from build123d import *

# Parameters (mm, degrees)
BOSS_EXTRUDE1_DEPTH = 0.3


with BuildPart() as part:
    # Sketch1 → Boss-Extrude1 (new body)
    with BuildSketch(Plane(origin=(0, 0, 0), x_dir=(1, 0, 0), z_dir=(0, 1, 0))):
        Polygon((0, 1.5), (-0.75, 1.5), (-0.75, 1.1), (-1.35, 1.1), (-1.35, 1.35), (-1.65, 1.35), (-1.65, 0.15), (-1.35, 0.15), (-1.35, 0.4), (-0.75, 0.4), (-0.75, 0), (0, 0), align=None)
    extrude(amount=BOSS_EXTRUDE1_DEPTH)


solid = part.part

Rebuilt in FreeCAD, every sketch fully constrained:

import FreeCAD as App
import Part
import Sketcher

V = App.Vector

doc = App.newDocument("Part")
body = doc.addObject("PartDesign::Body", "Body")

# Sketch on XZ plane
sketch1 = body.newObject("Sketcher::SketchObject", "Sketch")
sketch1.AttachmentSupport = (doc.getObject("XZ_Plane"), [""])
sketch1.MapMode = "FlatFace"
sketch1.addGeometry([
    Part.LineSegment(V(0, -1.5, 0), V(-0.75, -1.5, 0)),  # 0
    Part.LineSegment(V(-0.75, -1.5, 0), V(-0.75, -1.1, 0)),  # 1
    Part.LineSegment(V(-0.75, -1.1, 0), V(-1.35, -1.1, 0)),  # 2
    Part.LineSegment(V(-1.35, -1.1, 0), V(-1.35, -1.35, 0)),  # 3
    Part.LineSegment(V(-1.35, -1.35, 0), V(-1.65, -1.35, 0)),  # 4
    Part.LineSegment(V(-1.65, -1.35, 0), V(-1.65, -0.15, 0)),  # 5
    Part.LineSegment(V(-1.65, -0.15, 0), V(-1.35, -0.15, 0)),  # 6
    Part.LineSegment(V(-1.35, -0.15, 0), V(-1.35, -0.4, 0)),  # 7
    Part.LineSegment(V(-1.35, -0.4, 0), V(-0.75, -0.4, 0)),  # 8
    Part.LineSegment(V(-0.75, -0.4, 0), V(-0.75, 0, 0)),  # 9
    Part.LineSegment(V(-0.75, 0, 0), V(0, 0, 0)),  # 10
    Part.LineSegment(V(0, 0, 0), V(0, -1.5, 0)),  # 11
], False)
sketch1.addConstraint([
    Sketcher.Constraint("Coincident", 0, 2, 1, 1),
    Sketcher.Constraint("Coincident", 1, 2, 2, 1),
    Sketcher.Constraint("Coincident", 2, 2, 3, 1),
    Sketcher.Constraint("Coincident", 3, 2, 4, 1),
    Sketcher.Constraint("Coincident", 4, 2, 5, 1),
    Sketcher.Constraint("Coincident", 5, 2, 6, 1),
    Sketcher.Constraint("Coincident", 6, 2, 7, 1),
    Sketcher.Constraint("Coincident", 7, 2, 8, 1),
    Sketcher.Constraint("Coincident", 8, 2, 9, 1),
    Sketcher.Constraint("Coincident", 9, 2, 10, 1),
    Sketcher.Constraint("Coincident", 10, 2, 11, 1),
    Sketcher.Constraint("Coincident", 11, 2, 0, 1),
    Sketcher.Constraint("Horizontal", 0),
    Sketcher.Constraint("Vertical", 1),
    Sketcher.Constraint("Horizontal", 2),
    Sketcher.Constraint("Vertical", 3),
    Sketcher.Constraint("Horizontal", 4),
    Sketcher.Constraint("Vertical", 5),
    Sketcher.Constraint("Horizontal", 6),
    Sketcher.Constraint("Vertical", 7),
    Sketcher.Constraint("Horizontal", 8),
    Sketcher.Constraint("Vertical", 9),
    Sketcher.Constraint("Horizontal", 10),
    Sketcher.Constraint("Vertical", 11),
    Sketcher.Constraint("Coincident", 10, 2, -1, 1),
    Sketcher.Constraint("Vertical", 3, 2, 6, 2),
    Sketcher.Constraint("Vertical", 1, 2, 8, 2),
    Sketcher.Constraint("Equal", 3, 7),
    Sketcher.Constraint("Equal", 1, 9),
    Sketcher.Constraint("DistanceX", 2, 2, 2, 1, 0.6),
    Sketcher.Constraint("DistanceX", 4, 2, 4, 1, 0.3),
    Sketcher.Constraint("DistanceY", 1, 1, 1, 2, 0.4),
    Sketcher.Constraint("DistanceY", 5, 1, 5, 2, 1.2),
    Sketcher.Constraint("DistanceY", 11, 2, 11, 1, 1.5),
    Sketcher.Constraint("DistanceX", 0, 2, 0, 1, 0.75),
])
pad1 = body.newObject("PartDesign::Pad", "Pad")
pad1.Profile = sketch1
pad1.Length = 0.3
pad1.Reversed = True

doc.recompute()
